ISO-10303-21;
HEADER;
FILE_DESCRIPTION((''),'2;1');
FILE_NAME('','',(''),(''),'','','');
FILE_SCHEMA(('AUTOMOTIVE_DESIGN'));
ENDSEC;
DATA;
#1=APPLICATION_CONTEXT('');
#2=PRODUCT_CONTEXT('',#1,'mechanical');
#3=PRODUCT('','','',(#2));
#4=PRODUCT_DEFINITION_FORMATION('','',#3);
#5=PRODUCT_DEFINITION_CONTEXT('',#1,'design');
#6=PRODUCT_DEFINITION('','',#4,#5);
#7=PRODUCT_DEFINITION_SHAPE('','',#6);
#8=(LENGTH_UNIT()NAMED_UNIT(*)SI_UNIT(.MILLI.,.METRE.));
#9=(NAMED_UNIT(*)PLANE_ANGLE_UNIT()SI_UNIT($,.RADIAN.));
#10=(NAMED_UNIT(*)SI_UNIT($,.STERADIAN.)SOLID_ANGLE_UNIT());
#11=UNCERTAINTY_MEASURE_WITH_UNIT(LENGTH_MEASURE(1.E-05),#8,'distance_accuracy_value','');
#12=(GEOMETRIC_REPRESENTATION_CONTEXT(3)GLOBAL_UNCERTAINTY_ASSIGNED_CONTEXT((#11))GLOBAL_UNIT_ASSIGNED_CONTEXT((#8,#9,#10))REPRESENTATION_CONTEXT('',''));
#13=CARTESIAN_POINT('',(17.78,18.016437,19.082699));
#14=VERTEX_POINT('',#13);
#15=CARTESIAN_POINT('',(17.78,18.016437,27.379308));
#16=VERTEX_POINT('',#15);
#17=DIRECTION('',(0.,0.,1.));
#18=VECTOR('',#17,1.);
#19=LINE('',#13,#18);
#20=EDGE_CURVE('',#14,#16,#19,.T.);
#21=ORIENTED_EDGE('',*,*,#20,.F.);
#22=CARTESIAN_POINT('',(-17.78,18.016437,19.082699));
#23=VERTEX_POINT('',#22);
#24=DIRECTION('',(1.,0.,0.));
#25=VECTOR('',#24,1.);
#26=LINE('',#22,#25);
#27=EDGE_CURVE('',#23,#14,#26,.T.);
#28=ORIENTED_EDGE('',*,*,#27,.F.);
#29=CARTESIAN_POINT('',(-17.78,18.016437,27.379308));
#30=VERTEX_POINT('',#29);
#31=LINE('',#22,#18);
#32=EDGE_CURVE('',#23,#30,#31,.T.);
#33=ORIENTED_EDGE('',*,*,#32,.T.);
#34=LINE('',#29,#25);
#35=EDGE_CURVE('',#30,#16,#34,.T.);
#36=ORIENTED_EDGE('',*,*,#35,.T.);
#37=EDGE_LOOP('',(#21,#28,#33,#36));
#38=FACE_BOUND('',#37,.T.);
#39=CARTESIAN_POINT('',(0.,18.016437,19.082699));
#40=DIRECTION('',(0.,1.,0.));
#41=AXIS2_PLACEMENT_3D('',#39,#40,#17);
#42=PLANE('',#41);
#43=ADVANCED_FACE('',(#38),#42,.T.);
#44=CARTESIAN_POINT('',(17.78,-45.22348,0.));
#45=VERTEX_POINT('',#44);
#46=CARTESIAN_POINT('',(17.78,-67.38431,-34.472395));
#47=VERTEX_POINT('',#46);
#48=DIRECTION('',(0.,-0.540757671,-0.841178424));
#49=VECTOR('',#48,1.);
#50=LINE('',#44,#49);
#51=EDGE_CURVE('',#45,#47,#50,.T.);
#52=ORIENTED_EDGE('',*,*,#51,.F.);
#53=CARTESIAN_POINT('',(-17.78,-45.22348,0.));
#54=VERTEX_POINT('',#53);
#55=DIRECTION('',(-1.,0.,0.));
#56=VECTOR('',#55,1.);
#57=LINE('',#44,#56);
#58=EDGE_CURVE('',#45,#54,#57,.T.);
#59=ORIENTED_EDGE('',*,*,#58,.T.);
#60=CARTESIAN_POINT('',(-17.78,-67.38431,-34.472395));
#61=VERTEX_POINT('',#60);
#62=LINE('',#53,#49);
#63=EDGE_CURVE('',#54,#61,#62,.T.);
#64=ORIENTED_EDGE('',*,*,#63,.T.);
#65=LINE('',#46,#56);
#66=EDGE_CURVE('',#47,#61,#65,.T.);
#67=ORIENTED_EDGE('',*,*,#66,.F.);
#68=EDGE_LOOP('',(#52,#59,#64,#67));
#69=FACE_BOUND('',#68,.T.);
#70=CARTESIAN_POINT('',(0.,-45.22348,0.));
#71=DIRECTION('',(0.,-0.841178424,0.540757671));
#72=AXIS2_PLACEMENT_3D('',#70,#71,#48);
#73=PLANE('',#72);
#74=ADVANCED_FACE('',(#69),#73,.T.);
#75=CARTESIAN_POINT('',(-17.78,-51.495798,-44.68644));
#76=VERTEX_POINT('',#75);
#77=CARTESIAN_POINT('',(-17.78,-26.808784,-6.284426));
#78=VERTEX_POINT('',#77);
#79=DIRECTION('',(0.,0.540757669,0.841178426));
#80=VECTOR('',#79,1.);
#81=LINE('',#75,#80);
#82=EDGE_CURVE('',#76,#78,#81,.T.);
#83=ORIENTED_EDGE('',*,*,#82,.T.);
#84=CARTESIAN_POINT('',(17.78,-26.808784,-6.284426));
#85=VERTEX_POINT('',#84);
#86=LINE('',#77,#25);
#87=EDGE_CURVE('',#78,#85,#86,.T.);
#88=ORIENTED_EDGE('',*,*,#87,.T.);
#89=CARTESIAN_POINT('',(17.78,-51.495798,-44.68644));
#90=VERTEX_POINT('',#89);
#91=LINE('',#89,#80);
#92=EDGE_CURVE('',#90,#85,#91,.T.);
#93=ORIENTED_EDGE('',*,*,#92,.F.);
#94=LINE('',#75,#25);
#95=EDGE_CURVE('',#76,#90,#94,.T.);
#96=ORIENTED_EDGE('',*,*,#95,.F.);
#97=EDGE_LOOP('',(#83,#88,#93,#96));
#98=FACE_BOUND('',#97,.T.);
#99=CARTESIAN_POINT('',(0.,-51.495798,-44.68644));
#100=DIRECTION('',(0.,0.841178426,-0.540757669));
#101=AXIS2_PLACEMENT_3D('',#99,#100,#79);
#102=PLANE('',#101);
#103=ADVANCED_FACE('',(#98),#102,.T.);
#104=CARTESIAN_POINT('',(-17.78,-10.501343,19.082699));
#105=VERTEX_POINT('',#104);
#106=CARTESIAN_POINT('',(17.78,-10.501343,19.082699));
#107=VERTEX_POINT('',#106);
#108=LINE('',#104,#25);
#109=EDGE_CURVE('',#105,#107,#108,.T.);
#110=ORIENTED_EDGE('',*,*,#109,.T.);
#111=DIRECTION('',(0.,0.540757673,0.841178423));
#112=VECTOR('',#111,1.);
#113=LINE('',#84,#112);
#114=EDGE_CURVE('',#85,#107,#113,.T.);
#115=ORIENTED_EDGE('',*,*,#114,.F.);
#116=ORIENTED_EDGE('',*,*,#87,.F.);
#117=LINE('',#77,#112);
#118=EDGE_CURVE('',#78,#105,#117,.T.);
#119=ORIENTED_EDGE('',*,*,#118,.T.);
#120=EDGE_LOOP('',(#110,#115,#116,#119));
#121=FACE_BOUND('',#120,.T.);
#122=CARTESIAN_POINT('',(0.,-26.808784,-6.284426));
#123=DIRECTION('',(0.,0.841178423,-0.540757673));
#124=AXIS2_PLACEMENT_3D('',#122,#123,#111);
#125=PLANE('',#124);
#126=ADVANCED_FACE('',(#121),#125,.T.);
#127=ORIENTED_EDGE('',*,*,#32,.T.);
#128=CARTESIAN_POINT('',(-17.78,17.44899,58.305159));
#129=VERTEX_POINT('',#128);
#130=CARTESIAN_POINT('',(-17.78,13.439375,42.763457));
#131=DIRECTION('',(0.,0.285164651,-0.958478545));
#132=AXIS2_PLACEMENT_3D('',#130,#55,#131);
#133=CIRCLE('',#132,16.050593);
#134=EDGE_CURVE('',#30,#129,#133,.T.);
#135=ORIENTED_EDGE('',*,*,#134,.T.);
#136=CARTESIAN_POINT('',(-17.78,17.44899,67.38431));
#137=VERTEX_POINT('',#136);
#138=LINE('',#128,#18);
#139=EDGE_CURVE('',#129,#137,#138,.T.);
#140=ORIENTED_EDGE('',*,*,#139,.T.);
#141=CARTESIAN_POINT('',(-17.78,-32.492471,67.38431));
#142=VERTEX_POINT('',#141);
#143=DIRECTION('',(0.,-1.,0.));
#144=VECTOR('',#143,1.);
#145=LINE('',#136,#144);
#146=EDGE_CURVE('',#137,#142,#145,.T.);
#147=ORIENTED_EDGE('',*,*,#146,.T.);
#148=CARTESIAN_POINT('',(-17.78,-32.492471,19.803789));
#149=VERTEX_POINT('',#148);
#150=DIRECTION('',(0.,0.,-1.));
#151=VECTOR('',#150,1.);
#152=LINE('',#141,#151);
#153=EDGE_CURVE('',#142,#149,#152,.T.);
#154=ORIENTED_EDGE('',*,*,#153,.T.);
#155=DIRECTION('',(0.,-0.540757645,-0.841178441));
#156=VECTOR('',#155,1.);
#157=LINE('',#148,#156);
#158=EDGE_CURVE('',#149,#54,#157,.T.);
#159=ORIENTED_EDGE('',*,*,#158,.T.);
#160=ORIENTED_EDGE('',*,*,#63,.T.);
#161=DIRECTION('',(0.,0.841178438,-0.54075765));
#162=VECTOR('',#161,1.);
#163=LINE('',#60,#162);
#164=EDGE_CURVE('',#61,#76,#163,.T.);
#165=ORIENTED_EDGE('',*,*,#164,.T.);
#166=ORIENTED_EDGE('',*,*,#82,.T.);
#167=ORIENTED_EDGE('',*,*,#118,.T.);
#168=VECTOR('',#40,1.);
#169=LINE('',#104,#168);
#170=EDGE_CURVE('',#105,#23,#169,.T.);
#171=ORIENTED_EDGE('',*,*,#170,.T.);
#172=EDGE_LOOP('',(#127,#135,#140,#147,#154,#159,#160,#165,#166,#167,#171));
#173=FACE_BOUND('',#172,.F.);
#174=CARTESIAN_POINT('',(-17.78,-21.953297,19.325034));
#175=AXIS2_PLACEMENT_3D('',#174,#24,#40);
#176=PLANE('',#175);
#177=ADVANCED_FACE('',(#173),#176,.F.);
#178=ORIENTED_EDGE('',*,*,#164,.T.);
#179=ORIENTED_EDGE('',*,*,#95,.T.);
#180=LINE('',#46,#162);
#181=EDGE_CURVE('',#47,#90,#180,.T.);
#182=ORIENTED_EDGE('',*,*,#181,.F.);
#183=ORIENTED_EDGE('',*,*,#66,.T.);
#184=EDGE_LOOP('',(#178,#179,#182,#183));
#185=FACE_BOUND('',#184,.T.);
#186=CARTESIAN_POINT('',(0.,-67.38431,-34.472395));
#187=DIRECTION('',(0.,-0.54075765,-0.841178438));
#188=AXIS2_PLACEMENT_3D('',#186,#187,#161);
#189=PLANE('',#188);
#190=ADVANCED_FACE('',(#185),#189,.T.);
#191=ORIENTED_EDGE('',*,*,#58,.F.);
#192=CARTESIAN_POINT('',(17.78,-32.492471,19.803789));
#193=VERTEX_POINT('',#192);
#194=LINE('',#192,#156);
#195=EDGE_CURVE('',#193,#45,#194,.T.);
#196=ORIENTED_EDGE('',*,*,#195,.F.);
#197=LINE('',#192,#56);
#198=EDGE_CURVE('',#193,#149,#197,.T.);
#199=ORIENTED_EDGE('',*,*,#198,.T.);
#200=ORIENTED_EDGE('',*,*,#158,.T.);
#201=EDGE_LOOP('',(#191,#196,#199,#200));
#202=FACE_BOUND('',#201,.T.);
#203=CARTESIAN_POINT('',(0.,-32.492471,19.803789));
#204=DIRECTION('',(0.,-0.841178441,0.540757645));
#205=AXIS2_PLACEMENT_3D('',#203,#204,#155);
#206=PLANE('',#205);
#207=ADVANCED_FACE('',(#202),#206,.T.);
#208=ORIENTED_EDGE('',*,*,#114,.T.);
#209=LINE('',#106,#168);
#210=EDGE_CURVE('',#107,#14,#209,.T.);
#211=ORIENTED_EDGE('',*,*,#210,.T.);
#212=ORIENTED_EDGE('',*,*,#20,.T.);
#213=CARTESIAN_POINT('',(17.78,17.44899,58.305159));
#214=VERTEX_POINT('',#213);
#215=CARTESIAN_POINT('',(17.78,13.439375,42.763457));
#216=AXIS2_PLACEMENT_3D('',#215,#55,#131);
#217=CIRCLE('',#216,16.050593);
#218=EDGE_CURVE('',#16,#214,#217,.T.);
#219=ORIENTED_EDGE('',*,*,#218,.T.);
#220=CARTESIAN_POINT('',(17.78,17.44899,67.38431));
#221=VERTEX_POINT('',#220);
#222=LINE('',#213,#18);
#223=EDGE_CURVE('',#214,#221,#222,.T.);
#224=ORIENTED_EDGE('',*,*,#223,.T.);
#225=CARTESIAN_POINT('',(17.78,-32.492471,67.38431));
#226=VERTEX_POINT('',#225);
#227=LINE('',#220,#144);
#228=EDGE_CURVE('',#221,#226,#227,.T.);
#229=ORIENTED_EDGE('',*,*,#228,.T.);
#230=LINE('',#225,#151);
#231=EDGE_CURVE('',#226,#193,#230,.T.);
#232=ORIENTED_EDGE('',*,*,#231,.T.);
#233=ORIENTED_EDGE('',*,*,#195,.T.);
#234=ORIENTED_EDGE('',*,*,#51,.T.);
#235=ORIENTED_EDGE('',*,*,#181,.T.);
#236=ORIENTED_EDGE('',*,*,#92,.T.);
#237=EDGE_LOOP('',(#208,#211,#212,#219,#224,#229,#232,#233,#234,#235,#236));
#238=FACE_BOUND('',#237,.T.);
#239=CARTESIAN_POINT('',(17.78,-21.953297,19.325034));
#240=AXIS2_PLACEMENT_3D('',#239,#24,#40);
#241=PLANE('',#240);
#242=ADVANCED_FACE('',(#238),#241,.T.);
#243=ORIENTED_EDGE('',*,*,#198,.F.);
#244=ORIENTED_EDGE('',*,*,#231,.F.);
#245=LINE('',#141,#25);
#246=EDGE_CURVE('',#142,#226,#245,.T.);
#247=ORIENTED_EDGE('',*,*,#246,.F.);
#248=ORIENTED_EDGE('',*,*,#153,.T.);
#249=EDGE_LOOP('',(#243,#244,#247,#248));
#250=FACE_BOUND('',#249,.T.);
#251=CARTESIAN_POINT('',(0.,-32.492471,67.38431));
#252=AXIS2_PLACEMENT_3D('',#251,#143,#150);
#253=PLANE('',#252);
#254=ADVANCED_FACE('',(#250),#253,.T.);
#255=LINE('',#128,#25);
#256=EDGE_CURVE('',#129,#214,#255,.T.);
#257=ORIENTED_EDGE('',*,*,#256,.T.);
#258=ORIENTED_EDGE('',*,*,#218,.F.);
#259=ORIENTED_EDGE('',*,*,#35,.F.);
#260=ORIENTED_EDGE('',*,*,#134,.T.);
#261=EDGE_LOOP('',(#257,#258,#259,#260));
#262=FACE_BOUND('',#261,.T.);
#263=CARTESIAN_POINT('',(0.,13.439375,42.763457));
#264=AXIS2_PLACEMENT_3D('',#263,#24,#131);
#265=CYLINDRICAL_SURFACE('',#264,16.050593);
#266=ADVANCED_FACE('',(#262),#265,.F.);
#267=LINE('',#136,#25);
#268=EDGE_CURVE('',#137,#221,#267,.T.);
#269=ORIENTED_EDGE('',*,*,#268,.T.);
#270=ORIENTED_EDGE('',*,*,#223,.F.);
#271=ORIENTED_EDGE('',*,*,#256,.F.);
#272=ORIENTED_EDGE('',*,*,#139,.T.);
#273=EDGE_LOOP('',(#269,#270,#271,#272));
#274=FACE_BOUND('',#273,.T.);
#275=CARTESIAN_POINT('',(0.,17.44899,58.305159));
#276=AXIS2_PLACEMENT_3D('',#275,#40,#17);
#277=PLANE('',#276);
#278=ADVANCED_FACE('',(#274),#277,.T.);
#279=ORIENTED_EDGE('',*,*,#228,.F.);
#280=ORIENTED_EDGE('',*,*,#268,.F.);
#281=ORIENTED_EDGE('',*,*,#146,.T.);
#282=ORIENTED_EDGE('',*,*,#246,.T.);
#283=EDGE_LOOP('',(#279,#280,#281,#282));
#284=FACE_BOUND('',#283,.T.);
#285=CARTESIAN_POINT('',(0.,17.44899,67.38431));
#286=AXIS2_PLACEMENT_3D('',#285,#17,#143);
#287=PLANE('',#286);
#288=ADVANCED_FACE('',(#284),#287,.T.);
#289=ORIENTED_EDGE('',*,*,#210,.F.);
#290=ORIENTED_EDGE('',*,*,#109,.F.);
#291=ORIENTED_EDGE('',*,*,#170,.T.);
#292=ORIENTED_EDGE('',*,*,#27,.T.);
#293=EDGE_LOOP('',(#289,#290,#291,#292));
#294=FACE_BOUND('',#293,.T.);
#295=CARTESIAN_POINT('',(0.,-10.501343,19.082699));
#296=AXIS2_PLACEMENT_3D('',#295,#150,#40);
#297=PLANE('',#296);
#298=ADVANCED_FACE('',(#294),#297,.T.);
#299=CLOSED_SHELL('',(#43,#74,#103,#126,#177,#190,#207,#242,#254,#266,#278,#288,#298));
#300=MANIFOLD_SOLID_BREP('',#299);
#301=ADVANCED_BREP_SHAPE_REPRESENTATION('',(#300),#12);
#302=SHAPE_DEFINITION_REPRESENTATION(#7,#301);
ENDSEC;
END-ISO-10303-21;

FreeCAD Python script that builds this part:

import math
import FreeCAD as App
import Part
import Sketcher
Q = App.Units.Quantity

doc = App.newDocument("Part")
body = doc.addObject("PartDesign::Body", "Body")

sketch1 = body.newObject("Sketcher::SketchObject", "Sketch")
sketch1.AttachmentSupport = (doc.getObject("YZ_Plane"), [""])
sketch1.MapMode = "FlatFace"
sketch1.addGeometry([
    Part.LineSegment(App.Vector(-67.38431, -34.472395, 0), App.Vector(-51.495798, -44.68644, 0)),
    Part.LineSegment(App.Vector(-51.495798, -44.68644, 0), App.Vector(-26.808784, -6.284426, 0)),
    Part.LineSegment(App.Vector(-26.808784, -6.284426, 0), App.Vector(-10.501343, 19.082699, 0)),
    Part.LineSegment(App.Vector(-10.501343, 19.082699, 0), App.Vector(18.016437, 19.082699, 0)),
    Part.LineSegment(App.Vector(18.016437, 19.082699, 0), App.Vector(18.016437, 27.379308, 0)),
    Part.ArcOfCircle(Part.Circle(App.Vector(13.439375, 42.763457, 0), App.Vector(0, 0, 1), 16.050593), math.radians(75.533671), math.radians(286.568691)),
    Part.LineSegment(App.Vector(17.44899, 58.305159, 0), App.Vector(17.44899, 67.38431, 0)),
    Part.LineSegment(App.Vector(17.44899, 67.38431, 0), App.Vector(-32.492471, 67.38431, 0)),
    Part.LineSegment(App.Vector(-32.492471, 67.38431, 0), App.Vector(-32.492471, 19.803789, 0)),
    Part.LineSegment(App.Vector(-32.492471, 19.803789, 0), App.Vector(-45.22348, 0, 0)),
    Part.LineSegment(App.Vector(-45.22348, 0, 0), App.Vector(-67.38431, -34.472395, 0)),
], False)
sketch1.addConstraint([
    Sketcher.Constraint("Coincident", 0, 2, 1, 1),
    Sketcher.Constraint("Coincident", 1, 2, 2, 1),
    Sketcher.Constraint("Coincident", 2, 2, 3, 1),
    Sketcher.Constraint("Coincident", 3, 2, 4, 1),
    Sketcher.Constraint("Coincident", 4, 2, 5, 2),
    Sketcher.Constraint("Coincident", 5, 1, 6, 1),
    Sketcher.Constraint("Coincident", 6, 2, 7, 1),
    Sketcher.Constraint("Coincident", 7, 2, 8, 1),
    Sketcher.Constraint("Coincident", 8, 2, 9, 1),
    Sketcher.Constraint("Coincident", 9, 2, 10, 1),
    Sketcher.Constraint("Coincident", 10, 2, 0, 1),
    Sketcher.Constraint("Horizontal", 3),
    Sketcher.Constraint("Vertical", 4),
    Sketcher.Constraint("Vertical", 6),
    Sketcher.Constraint("Horizontal", 7),
    Sketcher.Constraint("Vertical", 8),
    Sketcher.Constraint("PointOnObject", 9, 2, -1),
    Sketcher.Constraint("Perpendicular", 0, 1),
    Sketcher.Constraint("Parallel", 1, 2),
    Sketcher.Constraint("Parallel", 2, 9),
    Sketcher.Constraint("Parallel", 9, 10),
    Sketcher.Constraint("DistanceY", 4, 2, 6, 2, Q("1.5750001 in")),
    Sketcher.Constraint("Radius", 5, Q("16.050593 mm")),
    Sketcher.Constraint("DistanceX", 3, 1, 3, 2, Q("28.51778 mm")),
    Sketcher.Constraint("DistanceX", 7, 2, 7, 1, Q("49.941461 mm")),
    Sketcher.Constraint("DistanceY", 4, 1, 4, 2, Q("8.296609 mm")),
    Sketcher.Constraint("DistanceY", 6, 1, 6, 2, Q("9.079151 mm")),
    Sketcher.Constraint("DistanceY", 8, 2, 8, 1, Q("47.580521 mm")),
    Sketcher.Constraint("DistanceY", -1, 1, 2, 2, Q("19.082699 mm")),
    Sketcher.Constraint("Distance", 9, Q("23.542911 mm")),
    Sketcher.Constraint("DistanceY", 0, 2, -1, 1, Q("44.68644 mm")),
    Sketcher.Constraint("DistanceX", -1, 1, 5, 1, Q("17.44899 mm")),
    Sketcher.Constraint("DistanceX", 10, 2, -1, 1, Q("67.38431 mm")),
    Sketcher.Constraint("DistanceX", 1, 2, 5, 3, Q("40.248159 mm")),
])
pad1 = body.newObject("PartDesign::Pad", "Pad")
pad1.Profile = sketch1
pad1.Length = Q("1.4 in")
pad1.Midplane = True

doc.recompute()
